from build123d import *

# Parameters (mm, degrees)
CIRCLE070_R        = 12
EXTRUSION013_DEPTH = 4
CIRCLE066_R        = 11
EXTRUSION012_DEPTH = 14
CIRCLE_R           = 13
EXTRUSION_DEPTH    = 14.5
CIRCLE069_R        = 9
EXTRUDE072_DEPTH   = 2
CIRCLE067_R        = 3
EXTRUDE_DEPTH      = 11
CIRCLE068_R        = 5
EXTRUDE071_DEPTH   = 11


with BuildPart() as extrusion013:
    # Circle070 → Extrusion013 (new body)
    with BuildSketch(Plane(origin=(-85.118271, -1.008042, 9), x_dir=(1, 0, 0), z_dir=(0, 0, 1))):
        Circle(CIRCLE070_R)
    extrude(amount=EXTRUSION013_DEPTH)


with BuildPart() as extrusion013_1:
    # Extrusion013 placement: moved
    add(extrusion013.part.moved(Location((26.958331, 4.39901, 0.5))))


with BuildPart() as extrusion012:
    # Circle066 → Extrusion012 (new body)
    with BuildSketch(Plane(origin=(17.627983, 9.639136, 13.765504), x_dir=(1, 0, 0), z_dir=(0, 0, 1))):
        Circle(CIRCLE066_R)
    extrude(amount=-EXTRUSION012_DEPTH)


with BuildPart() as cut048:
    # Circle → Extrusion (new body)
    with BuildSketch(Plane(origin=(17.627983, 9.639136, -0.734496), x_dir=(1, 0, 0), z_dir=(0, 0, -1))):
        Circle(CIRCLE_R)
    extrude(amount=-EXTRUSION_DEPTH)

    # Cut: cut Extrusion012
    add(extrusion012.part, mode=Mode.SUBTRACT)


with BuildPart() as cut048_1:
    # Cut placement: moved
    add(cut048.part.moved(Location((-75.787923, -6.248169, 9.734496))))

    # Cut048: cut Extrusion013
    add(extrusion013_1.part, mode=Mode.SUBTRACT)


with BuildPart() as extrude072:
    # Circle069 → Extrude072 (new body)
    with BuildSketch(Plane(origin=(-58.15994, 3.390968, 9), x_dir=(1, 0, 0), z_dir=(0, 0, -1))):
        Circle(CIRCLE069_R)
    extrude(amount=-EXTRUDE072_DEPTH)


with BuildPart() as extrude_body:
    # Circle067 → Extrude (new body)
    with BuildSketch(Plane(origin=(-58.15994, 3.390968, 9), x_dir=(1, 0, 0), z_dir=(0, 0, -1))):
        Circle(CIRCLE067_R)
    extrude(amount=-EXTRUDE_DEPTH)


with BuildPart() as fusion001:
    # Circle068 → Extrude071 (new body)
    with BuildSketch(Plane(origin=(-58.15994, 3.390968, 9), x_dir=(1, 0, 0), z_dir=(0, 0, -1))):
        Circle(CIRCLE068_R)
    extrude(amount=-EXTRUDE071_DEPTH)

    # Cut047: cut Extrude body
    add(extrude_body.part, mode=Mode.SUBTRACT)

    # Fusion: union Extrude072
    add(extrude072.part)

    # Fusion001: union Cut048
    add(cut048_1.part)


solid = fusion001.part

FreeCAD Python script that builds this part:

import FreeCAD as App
import Part
import Sketcher
Q = App.Units.Quantity

doc = App.newDocument("Part")
body = doc.addObject("PartDesign::Body", "Body")

sketch1 = body.newObject("Sketcher::SketchObject", "Sketch")
sketch1.AttachmentSupport = (doc.getObject("XY_Plane"), [""])
sketch1.MapMode = "FlatFace"
sketch1.AttachmentOffset = App.Placement(App.Vector(0, 0, 9), App.Rotation())
sketch1.addGeometry(Part.Circle(App.Vector(-85.118271, -1.008042, 0), App.Vector(0, 0, 1), 12), False)
sketch1.addConstraint(Sketcher.Constraint("Diameter", 0, Q("24 mm")))
sketch1.addConstraint(Sketcher.Constraint("DistanceX", 0, 3, -1, 1, Q("85.118271 mm")))
sketch1.addConstraint(Sketcher.Constraint("DistanceY", 0, 3, -1, 1, Q("1.008042 mm")))
pad1 = body.newObject("PartDesign::Pad", "Pad")
pad1.Profile = sketch1
pad1.Length = 4
body2 = doc.addObject("PartDesign::Body", "Body001")
doc.recompute()

body.Placement = App.Placement(App.Vector(26.958331, 4.39901, 0.5), App.Rotation(App.Vector(0, 0, 1), 0))
boolean = body2.newObject("PartDesign::Boolean", "Boolean")
boolean.Type = "Fuse"
boolean.addObjects([body])
body3 = doc.addObject("PartDesign::Body", "Body002")

sketch2 = body3.newObject("Sketcher::SketchObject", "Sketch001")
sketch2.AttachmentSupport = (doc.getObject("XY_Plane002"), [""])
sketch2.MapMode = "FlatFace"
sketch2.AttachmentOffset = App.Placement(App.Vector(0, 0, 13.765504), App.Rotation())
sketch2.addGeometry(Part.Circle(App.Vector(17.627983, 9.639136, 0), App.Vector(0, 0, 1), 11), False)
sketch2.addConstraint(Sketcher.Constraint("Diameter", 0, Q("22 mm")))
sketch2.addConstraint(Sketcher.Constraint("DistanceX", -1, 1, 0, 3, Q("17.627983 mm")))
sketch2.addConstraint(Sketcher.Constraint("DistanceY", -1, 1, 0, 3, Q("9.639136 mm")))
pad2 = body3.newObject("PartDesign::Pad", "Pad001")
pad2.Profile = sketch2
pad2.Length = 14
pad2.Reversed = True
body4 = doc.addObject("PartDesign::Body", "Body003")

sketch3 = body4.newObject("Sketcher::SketchObject", "Sketch002")
sketch3.AttachmentSupport = (doc.getObject("XY_Plane003"), [""])
sketch3.MapMode = "FlatFace"
sketch3.AttachmentOffset = App.Placement(App.Vector(0, 0, -0.734496), App.Rotation())
sketch3.addGeometry(Part.Circle(App.Vector(17.627983, 9.639136, 0), App.Vector(0, 0, 1), 13), False)
sketch3.addConstraint(Sketcher.Constraint("Diameter", 0, Q("26 mm")))
sketch3.addConstraint(Sketcher.Constraint("DistanceX", -1, 1, 0, 3, Q("17.627983 mm")))
sketch3.addConstraint(Sketcher.Constraint("DistanceY", -1, 1, 0, 3, Q("9.639136 mm")))
pad3 = body4.newObject("PartDesign::Pad", "Pad002")
pad3.Profile = sketch3
pad3.Length = 14.5
doc.recompute()

boolean2 = body4.newObject("PartDesign::Boolean", "Boolean001")
boolean2.Type = "Cut"
boolean2.addObjects([body3])
body5 = doc.addObject("PartDesign::Body", "Body004")
doc.recompute()

body4.Placement = App.Placement(App.Vector(-75.787923, -6.248169, 9.734496), App.Rotation(App.Vector(0, 0, 1), 0))
boolean3 = body5.newObject("PartDesign::Boolean", "Boolean002")
boolean3.Type = "Fuse"
boolean3.addObjects([body4])
doc.recompute()

boolean4 = body5.newObject("PartDesign::Boolean", "Boolean003")
boolean4.Type = "Cut"
boolean4.addObjects([body2])
body6 = doc.addObject("PartDesign::Body", "Body005")

sketch4 = body6.newObject("Sketcher::SketchObject", "Sketch003")
sketch4.AttachmentSupport = (doc.getObject("XY_Plane005"), [""])
sketch4.MapMode = "FlatFace"
sketch4.AttachmentOffset = App.Placement(App.Vector(0, 0, 9), App.Rotation())
sketch4.addGeometry(Part.Circle(App.Vector(-58.15994, 3.390968, 0), App.Vector(0, 0, 1), 9), False)
sketch4.addConstraint(Sketcher.Constraint("Diameter", 0, Q("18 mm")))
sketch4.addConstraint(Sketcher.Constraint("DistanceX", 0, 3, -1, 1, Q("58.15994 mm")))
sketch4.addConstraint(Sketcher.Constraint("DistanceY", -1, 1, 0, 3, Q("3.390968 mm")))
pad4 = body6.newObject("PartDesign::Pad", "Pad003")
pad4.Profile = sketch4
pad4.Length = 2
body7 = doc.addObject("PartDesign::Body", "Body006")

sketch5 = body7.newObject("Sketcher::SketchObject", "Sketch004")
sketch5.AttachmentSupport = (doc.getObject("XY_Plane006"), [""])
sketch5.MapMode = "FlatFace"
sketch5.AttachmentOffset = App.Placement(App.Vector(0, 0, 9), App.Rotation())
sketch5.addGeometry(Part.Circle(App.Vector(-58.15994, 3.390968, 0), App.Vector(0, 0, 1), 3), False)
sketch5.addConstraint(Sketcher.Constraint("Diameter", 0, Q("6 mm")))
sketch5.addConstraint(Sketcher.Constraint("DistanceX", 0, 3, -1, 1, Q("58.15994 mm")))
sketch5.addConstraint(Sketcher.Constraint("DistanceY", -1, 1, 0, 3, Q("3.390968 mm")))
pad5 = body7.newObject("PartDesign::Pad", "Pad004")
pad5.Profile = sketch5
pad5.Length = 11
body8 = doc.addObject("PartDesign::Body", "Body007")

sketch6 = body8.newObject("Sketcher::SketchObject", "Sketch005")
sketch6.AttachmentSupport = (doc.getObject("XY_Plane007"), [""])
sketch6.MapMode = "FlatFace"
sketch6.AttachmentOffset = App.Placement(App.Vector(0, 0, 9), App.Rotation())
sketch6.addGeometry(Part.Circle(App.Vector(-58.15994, 3.390968, 0), App.Vector(0, 0, 1), 5), False)
sketch6.addConstraint(Sketcher.Constraint("Diameter", 0, Q("10 mm")))
sketch6.addConstraint(Sketcher.Constraint("DistanceX", 0, 3, -1, 1, Q("58.15994 mm")))
sketch6.addConstraint(Sketcher.Constraint("DistanceY", -1, 1, 0, 3, Q("3.390968 mm")))
pad6 = body8.newObject("PartDesign::Pad", "Pad005")
pad6.Profile = sketch6
pad6.Length = 11
doc.recompute()

boolean5 = body8.newObject("PartDesign::Boolean", "Boolean004")
boolean5.Type = "Cut"
boolean5.addObjects([body7])
doc.recompute()

boolean6 = body8.newObject("PartDesign::Boolean", "Boolean005")
boolean6.Type = "Fuse"
boolean6.addObjects([body6])
doc.recompute()

boolean7 = body8.newObject("PartDesign::Boolean", "Boolean006")
boolean7.Type = "Fuse"
boolean7.addObjects([body5])

doc.recompute()
